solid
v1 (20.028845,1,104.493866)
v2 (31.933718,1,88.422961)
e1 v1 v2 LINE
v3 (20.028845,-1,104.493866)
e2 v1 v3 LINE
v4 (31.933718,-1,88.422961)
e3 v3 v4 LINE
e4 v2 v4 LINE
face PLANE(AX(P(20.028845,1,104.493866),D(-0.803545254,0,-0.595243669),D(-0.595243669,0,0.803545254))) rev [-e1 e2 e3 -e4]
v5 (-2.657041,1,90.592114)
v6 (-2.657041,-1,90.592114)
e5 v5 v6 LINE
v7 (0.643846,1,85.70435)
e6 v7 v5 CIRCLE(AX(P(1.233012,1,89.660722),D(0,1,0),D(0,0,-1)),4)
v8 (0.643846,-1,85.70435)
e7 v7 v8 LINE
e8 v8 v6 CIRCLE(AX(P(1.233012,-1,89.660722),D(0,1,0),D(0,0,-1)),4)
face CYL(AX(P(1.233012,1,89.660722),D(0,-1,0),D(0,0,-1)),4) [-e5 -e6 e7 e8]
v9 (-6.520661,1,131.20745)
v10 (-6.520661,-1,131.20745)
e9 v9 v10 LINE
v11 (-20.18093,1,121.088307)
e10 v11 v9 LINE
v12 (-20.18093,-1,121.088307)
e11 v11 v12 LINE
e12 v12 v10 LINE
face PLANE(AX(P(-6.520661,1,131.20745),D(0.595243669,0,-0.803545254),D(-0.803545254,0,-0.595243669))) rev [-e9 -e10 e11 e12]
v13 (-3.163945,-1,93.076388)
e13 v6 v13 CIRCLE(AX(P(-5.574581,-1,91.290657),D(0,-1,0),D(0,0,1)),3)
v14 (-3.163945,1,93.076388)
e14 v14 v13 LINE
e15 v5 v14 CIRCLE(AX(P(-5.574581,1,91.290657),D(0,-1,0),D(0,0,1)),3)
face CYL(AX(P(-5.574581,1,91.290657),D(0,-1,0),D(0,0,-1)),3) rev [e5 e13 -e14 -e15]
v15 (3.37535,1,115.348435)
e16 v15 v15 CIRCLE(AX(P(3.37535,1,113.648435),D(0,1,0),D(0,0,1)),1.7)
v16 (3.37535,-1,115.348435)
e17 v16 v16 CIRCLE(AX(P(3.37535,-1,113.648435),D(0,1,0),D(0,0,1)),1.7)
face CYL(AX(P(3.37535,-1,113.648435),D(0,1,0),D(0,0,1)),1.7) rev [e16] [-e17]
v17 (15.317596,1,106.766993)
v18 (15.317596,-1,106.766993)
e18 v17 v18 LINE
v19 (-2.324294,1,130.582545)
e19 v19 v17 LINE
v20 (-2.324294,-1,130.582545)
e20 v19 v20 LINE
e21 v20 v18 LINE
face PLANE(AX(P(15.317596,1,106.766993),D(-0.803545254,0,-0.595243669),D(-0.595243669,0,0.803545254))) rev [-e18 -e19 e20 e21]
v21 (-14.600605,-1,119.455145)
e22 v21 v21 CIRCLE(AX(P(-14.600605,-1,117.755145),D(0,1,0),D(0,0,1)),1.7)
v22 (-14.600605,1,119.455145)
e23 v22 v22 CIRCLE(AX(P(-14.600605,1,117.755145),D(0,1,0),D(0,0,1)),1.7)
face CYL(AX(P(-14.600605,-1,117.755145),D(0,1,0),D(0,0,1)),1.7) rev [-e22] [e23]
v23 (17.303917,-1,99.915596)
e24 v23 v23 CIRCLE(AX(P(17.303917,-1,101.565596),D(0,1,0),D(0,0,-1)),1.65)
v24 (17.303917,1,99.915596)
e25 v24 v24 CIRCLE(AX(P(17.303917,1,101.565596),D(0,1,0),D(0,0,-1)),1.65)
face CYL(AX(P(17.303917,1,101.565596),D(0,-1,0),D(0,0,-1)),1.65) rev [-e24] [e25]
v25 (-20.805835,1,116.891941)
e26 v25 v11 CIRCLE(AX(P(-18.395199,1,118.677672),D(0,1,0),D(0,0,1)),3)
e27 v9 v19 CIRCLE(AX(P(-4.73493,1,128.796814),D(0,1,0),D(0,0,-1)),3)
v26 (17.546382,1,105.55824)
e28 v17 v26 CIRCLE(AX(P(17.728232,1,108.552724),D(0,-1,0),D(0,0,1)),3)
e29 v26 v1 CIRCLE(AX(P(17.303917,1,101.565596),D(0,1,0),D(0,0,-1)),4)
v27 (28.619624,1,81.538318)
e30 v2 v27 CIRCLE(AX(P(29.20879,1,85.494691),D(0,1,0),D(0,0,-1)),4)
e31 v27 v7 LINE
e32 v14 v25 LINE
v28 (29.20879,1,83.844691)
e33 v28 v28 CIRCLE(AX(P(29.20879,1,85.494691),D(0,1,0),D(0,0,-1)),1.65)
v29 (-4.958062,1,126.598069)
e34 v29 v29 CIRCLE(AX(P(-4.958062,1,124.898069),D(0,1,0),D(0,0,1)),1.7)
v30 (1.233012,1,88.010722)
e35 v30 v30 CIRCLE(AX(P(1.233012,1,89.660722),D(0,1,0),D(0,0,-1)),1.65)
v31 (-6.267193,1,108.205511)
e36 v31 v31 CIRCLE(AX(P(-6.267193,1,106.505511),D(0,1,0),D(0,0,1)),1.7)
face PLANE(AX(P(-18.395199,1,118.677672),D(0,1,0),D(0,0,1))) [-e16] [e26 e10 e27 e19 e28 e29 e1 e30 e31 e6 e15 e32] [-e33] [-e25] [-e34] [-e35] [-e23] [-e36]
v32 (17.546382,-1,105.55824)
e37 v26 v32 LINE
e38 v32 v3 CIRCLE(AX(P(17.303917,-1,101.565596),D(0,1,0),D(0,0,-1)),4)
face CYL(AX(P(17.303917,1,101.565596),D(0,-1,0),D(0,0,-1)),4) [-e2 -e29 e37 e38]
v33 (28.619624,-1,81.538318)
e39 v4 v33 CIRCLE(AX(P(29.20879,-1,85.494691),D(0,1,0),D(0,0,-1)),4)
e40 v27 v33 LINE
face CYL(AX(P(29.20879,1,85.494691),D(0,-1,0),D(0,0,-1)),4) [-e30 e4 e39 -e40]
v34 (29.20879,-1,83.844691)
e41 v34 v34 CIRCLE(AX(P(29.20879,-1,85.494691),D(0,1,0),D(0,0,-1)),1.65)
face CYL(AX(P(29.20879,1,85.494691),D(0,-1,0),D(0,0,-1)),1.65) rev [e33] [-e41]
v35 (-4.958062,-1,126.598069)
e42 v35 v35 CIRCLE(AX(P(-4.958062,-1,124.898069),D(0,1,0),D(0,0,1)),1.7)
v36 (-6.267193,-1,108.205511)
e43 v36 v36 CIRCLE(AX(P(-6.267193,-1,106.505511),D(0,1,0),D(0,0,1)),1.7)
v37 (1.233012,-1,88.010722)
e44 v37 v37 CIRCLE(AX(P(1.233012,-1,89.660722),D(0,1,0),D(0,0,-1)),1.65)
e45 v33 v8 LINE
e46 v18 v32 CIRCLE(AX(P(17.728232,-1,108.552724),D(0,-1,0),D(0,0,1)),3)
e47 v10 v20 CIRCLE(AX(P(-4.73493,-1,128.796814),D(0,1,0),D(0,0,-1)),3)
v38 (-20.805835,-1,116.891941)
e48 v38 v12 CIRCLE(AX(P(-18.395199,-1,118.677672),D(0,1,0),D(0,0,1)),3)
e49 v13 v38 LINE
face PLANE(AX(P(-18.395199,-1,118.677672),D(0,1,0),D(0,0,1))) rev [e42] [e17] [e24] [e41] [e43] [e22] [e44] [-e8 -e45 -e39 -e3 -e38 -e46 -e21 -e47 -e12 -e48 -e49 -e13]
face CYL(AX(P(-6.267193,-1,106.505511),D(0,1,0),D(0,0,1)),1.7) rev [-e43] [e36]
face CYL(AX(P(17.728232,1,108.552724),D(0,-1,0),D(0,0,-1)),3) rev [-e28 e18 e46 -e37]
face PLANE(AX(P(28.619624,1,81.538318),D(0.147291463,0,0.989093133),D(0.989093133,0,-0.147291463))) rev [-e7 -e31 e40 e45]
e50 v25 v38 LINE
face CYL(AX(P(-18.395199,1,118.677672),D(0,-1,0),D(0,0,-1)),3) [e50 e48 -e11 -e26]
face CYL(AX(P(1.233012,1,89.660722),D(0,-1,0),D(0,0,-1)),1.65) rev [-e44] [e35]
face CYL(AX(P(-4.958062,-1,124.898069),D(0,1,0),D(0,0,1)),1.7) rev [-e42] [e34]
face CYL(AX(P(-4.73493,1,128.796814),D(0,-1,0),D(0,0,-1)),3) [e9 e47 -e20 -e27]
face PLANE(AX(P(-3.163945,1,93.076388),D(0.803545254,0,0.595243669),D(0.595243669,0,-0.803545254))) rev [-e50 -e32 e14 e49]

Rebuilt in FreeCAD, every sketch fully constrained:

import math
import FreeCAD as App
import Part
import Sketcher

V = App.Vector
Q = App.Units.Quantity

doc = App.newDocument("Part")
body = doc.addObject("PartDesign::Body", "Body")

# Sketch on XZ plane
sketch1 = doc.addObject("Sketcher::SketchObject", "Sketch")
body.addObject(sketch1)
sketch1.AttachmentSupport = (doc.XZ_Plane, [""])
sketch1.MapMode = "FlatFace"
sketch1.addGeometry(Part.LineSegment(V(-3.163945, 93.076388, 0), V(-20.805835, 116.891941, 0)), False)
sketch1.addGeometry(Part.ArcOfCircle(Part.Circle(V(-18.395199, 118.677672, 0), V(0, 0, 1), 3), math.radians(126.530005), math.radians(216.530005)), False)
sketch1.addGeometry(Part.LineSegment(V(-20.18093, 121.088307, 0), V(-6.520661, 131.20745, 0)), False)
sketch1.addGeometry(Part.ArcOfCircle(Part.Circle(V(-4.73493, 128.796814, 0), V(0, 0, 1), 3), math.radians(36.530005), math.radians(126.530005)), False)
sketch1.addGeometry(Part.LineSegment(V(-2.324294, 130.582545, 0), V(15.317596, 106.766993, 0)), False)
sketch1.addGeometry(Part.ArcOfCircle(Part.Circle(V(17.728232, 108.552724, 0), V(0, 0, 1), 3), math.radians(-143.469995), math.radians(-93.475196)), False)
sketch1.addGeometry(Part.ArcOfCircle(Part.Circle(V(17.303917, 101.565596, 0), V(0, 0, 1), 4), math.radians(47.060009), math.radians(86.524804)), False)
sketch1.addGeometry(Part.LineSegment(V(20.028845, 104.493866, 0), V(31.933718, 88.422961, 0)), False)
sketch1.addGeometry(Part.ArcOfCircle(Part.Circle(V(29.20879, 85.494691, 0), V(0, 0, 1), 4), math.radians(-98.469995), math.radians(47.060009)), False)
sketch1.addGeometry(Part.LineSegment(V(28.619624, 81.538318, 0), V(0.643846, 85.70435, 0)), False)
sketch1.addGeometry(Part.ArcOfCircle(Part.Circle(V(1.233012, 89.660722, 0), V(0, 0, 1), 4), math.radians(166.535206), math.radians(261.530005)), False)
sketch1.addGeometry(Part.ArcOfCircle(Part.Circle(V(-5.574581, 91.290657, 0), V(0, 0, 1), 3), math.radians(-13.464794), math.radians(36.530005)), False)
sketch1.addGeometry(Part.Circle(V(17.303917, 101.565596, 0), V(0, 0, 1), 1.65), False)
sketch1.addGeometry(Part.Circle(V(1.233012, 89.660722, 0), V(0, 0, 1), 1.65), False)
sketch1.addGeometry(Part.Circle(V(29.20879, 85.494691, 0), V(0, 0, 1), 1.65), False)
sketch1.addConstraint(Sketcher.Constraint("Tangent", 0, 2, 1, 2))
sketch1.addConstraint(Sketcher.Constraint("Tangent", 1, 1, 2, 1))
sketch1.addConstraint(Sketcher.Constraint("Tangent", 2, 2, 3, 2))
sketch1.addConstraint(Sketcher.Constraint("Tangent", 3, 1, 4, 1))
sketch1.addConstraint(Sketcher.Constraint("Tangent", 4, 2, 5, 1))
sketch1.addConstraint(Sketcher.Constraint("Tangent", 5, 2, 6, 2))
sketch1.addConstraint(Sketcher.Constraint("Coincident", 6, 1, 7, 1))
sketch1.addConstraint(Sketcher.Constraint("Coincident", 7, 2, 8, 2))
sketch1.addConstraint(Sketcher.Constraint("Tangent", 8, 1, 9, 1))
sketch1.addConstraint(Sketcher.Constraint("Tangent", 9, 2, 10, 2))
sketch1.addConstraint(Sketcher.Constraint("Tangent", 10, 1, 11, 1))
sketch1.addConstraint(Sketcher.Constraint("Tangent", 11, 2, 0, 1))
sketch1.addConstraint(Sketcher.Constraint("Coincident", 12, 3, 6, 3))
sketch1.addConstraint(Sketcher.Constraint("Coincident", 13, 3, 10, 3))
sketch1.addConstraint(Sketcher.Constraint("Coincident", 14, 3, 8, 3))
sketch1.addConstraint(Sketcher.Constraint("Equal", 1, 3))
sketch1.addConstraint(Sketcher.Constraint("Equal", 3, 5))
sketch1.addConstraint(Sketcher.Constraint("Equal", 6, 8))
sketch1.addConstraint(Sketcher.Constraint("Equal", 8, 10))
sketch1.addConstraint(Sketcher.Constraint("Equal", 5, 11))
sketch1.addConstraint(Sketcher.Constraint("Equal", 12, 13))
sketch1.addConstraint(Sketcher.Constraint("Equal", 13, 14))
sketch1.addConstraint(Sketcher.Constraint("Perpendicular", 0, 2))
sketch1.addConstraint(Sketcher.Constraint("Perpendicular", 2, 4))
sketch1.addConstraint(Sketcher.Constraint("Parallel", 4, 7))
sketch1.addConstraint(Sketcher.Constraint("Equal", 0, 4))
sketch1.addConstraint(Sketcher.Constraint("Radius", 1, Q("3 mm")))
sketch1.addConstraint(Sketcher.Constraint("Radius", 6, Q("4 mm")))
sketch1.addConstraint(Sketcher.Constraint("Diameter", 12, Q("3.3 mm")))
sketch1.addConstraint(Sketcher.Constraint("Distance", 2, Q("17 mm")))
sketch1.addConstraint(Sketcher.Constraint("Distance", 7, Q("20 mm")))
sketch1.addConstraint(Sketcher.Constraint("Angle", 0, Q("126.530005 deg")))
sketch1.addConstraint(Sketcher.Constraint("Angle", 9, Q("171.530005 deg")))
sketch1.addConstraint(Sketcher.Constraint("DistanceY", 10, 3, 5, 3, Q("18.892001 mm")))
sketch1.addConstraint(Sketcher.Constraint("DistanceX", 1, 3, -1, 1, Q("18.395199 mm")))
sketch1.addConstraint(Sketcher.Constraint("DistanceX", 6, 3, 7, 2, Q("14.629801 mm")))
sketch1.addConstraint(Sketcher.Constraint("Distance", 9, Q("28.284271 mm")))
sketch1.addConstraint(Sketcher.Constraint("DistanceY", -1, 1, 1, 3, Q("118.677672 mm")))
sketch1.addConstraint(Sketcher.Constraint("DistanceX", -1, 1, 5, 3, Q("17.728232 mm")))
pad1 = doc.addObject("PartDesign::Pad", "Pad")
body.addObject(pad1)
pad1.Profile = sketch1
pad1.Length = 2
pad1.Midplane = True

# Sketch on XZ plane
sketch2 = doc.addObject("Sketcher::SketchObject", "Sketch001")
body.addObject(sketch2)
sketch2.AttachmentSupport = (doc.XZ_Plane, [""])
sketch2.MapMode = "FlatFace"
sketch2.AttachmentOffset = App.Placement(V(0, 0, -1), App.Rotation())
sketch2.addGeometry(Part.Circle(V(-6.267193, 106.505511, 0), V(0, 0, 1), 1.7), False)
sketch2.addGeometry(Part.Circle(V(-14.600605, 117.755145, 0), V(0, 0, 1), 1.7), False)
sketch2.addGeometry(Part.Circle(V(-4.958062, 124.898069, 0), V(0, 0, 1), 1.7), False)
sketch2.addGeometry(Part.Circle(V(3.37535, 113.648435, 0), V(0, 0, 1), 1.7), False)
sketch2.addConstraint(Sketcher.Constraint("Equal", 0, 1))
sketch2.addConstraint(Sketcher.Constraint("Equal", 1, 2))
sketch2.addConstraint(Sketcher.Constraint("Equal", 2, 3))
sketch2.addConstraint(Sketcher.Constraint("Diameter", 0, Q("3.4 mm")))
sketch2.addConstraint(Sketcher.Constraint("DistanceY", -1, 1, 0, 3, Q("106.505511 mm")))
sketch2.addConstraint(Sketcher.Constraint("DistanceX", 2, 3, -1, 1, Q("4.958062 mm")))
sketch2.addConstraint(Sketcher.Constraint("DistanceY", -1, 1, 2, 3, Q("124.898069 mm")))
sketch2.addConstraint(Sketcher.Constraint("DistanceX", -1, 1, 3, 3, Q("3.37535 mm")))
sketch2.addConstraint(Sketcher.Constraint("DistanceX", 1, 3, 0, 3, Q("8.333411 mm")))
sketch2.addConstraint(Sketcher.Constraint("DistanceX", 0, 3, 2, 3, Q("1.309132 mm")))
sketch2.addConstraint(Sketcher.Constraint("DistanceY", 3, 3, 1, 3, Q("4.10671 mm")))
sketch2.addConstraint(Sketcher.Constraint("DistanceY", -1, 1, 1, 3, Q("117.755145 mm")))
pocket1 = doc.addObject("PartDesign::Pocket", "Pocket")
body.addObject(pocket1)
pocket1.Profile = sketch2
pocket1.Length = 2
pocket1.Reversed = True

doc.recompute()
